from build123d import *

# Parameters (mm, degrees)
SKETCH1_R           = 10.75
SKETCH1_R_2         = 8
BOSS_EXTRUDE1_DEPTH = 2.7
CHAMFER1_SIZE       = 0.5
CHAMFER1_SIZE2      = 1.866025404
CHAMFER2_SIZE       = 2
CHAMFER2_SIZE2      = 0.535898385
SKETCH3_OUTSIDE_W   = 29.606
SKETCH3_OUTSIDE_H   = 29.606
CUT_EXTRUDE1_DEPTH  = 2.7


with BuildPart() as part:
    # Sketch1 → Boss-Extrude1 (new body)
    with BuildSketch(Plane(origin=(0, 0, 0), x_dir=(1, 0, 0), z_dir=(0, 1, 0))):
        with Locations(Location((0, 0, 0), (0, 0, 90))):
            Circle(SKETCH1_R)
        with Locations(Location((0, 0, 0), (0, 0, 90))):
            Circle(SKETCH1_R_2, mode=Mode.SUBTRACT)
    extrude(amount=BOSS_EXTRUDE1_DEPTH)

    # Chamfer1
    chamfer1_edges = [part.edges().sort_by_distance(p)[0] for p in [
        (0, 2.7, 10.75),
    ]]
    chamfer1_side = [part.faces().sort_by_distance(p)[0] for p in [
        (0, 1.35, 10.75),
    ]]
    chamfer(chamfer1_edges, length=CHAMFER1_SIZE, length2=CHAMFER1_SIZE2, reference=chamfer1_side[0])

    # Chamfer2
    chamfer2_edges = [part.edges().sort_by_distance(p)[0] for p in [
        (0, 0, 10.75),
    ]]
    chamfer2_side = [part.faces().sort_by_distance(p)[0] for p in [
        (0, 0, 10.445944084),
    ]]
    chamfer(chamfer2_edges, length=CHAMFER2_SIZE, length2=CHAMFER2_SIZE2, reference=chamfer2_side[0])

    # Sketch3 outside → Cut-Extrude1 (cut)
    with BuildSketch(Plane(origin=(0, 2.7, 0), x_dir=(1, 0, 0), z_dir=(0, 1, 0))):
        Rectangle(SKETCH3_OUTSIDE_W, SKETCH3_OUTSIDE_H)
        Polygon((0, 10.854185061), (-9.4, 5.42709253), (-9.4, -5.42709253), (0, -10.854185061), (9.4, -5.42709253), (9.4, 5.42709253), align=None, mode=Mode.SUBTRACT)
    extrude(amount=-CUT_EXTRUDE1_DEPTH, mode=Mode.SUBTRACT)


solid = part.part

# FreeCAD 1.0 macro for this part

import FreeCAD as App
import Part
import Sketcher

V = App.Vector
Q = App.Units.Quantity


def edges_at(feature, points):
    """Names of the edges that pass closest to the given points."""
    edges = feature.Shape.Edges
    near = lambda p: min(range(len(edges)), key=lambda i: edges[i].distToShape(Part.Vertex(*p))[0])
    return sorted({f"Edge{near(p) + 1}" for p in points})

doc = App.newDocument("Part")
body = doc.addObject("PartDesign::Body", "Body")

# Sketch on XZ plane
sketch1 = body.newObject("Sketcher::SketchObject", "Sketch")
sketch1.AttachmentSupport = (doc.getObject("XZ_Plane"), [""])
sketch1.MapMode = "FlatFace"
sketch1.addGeometry([
    Part.Circle(V(0, 0, 0), V(0, 0, 1), 11),
    Part.Circle(V(0, 0, 0), V(0, 0, 1), 8),
], False)
sketch1.addConstraint([
    Sketcher.Constraint("Coincident", 0, 3, -1, 1),
    Sketcher.Constraint("Coincident", 1, 3, -1, 1),
    Sketcher.Constraint("Diameter", 1, 16.0),
    Sketcher.Constraint("Diameter", 0, 21.5),
])
pad1 = body.newObject("PartDesign::Pad", "Pad")
pad1.Profile = sketch1
pad1.Length = 2.7
pad1.Reversed = True
doc.recompute()

chamfer = body.newObject("PartDesign::Chamfer", "Chamfer")
chamfer.Base = (pad1, edges_at(pad1, [(0, 2.7, 10.75)]))
chamfer.ChamferType = "Two distances"
chamfer.Size = 0.5
chamfer.Size2 = 1.866025
doc.recompute()

chamfer2 = body.newObject("PartDesign::Chamfer", "Chamfer001")
chamfer2.Base = (chamfer, edges_at(chamfer, [(0, 0, 10.75)]))
chamfer2.ChamferType = "Two distances"
chamfer2.Size = 2
chamfer2.Size2 = 0.535898
chamfer2.FlipDirection = True

# Sketch on XZ plane
sketch2 = body.newObject("Sketcher::SketchObject", "Sketch001")
sketch2.AttachmentSupport = (doc.getObject("XZ_Plane"), [""])
sketch2.MapMode = "FlatFace"
sketch2.AttachmentOffset = App.Placement(V(0, 0, -2.7), App.Rotation())
sketch2.addGeometry([
    Part.LineSegment(V(-15, -15, 0), V(-15, 15, 0)),  # 0
    Part.LineSegment(V(-15, 15, 0), V(15, 15, 0)),  # 1
    Part.LineSegment(V(15, 15, 0), V(15, -15, 0)),  # 2
    Part.LineSegment(V(15, -15, 0), V(-15, -15, 0)),  # 3
    Part.LineSegment(V(-9, -5, 0), V(0, -11, 0)),  # 4
    Part.LineSegment(V(0, -11, 0), V(9, -5, 0)),  # 5
    Part.LineSegment(V(9, -5, 0), V(9, 5, 0)),  # 6
    Part.LineSegment(V(9, 5, 0), V(0, 11, 0)),  # 7
    Part.LineSegment(V(0, 11, 0), V(-9, 5, 0)),  # 8
    Part.LineSegment(V(-9, 5, 0), V(-9, -5, 0)),  # 9
], False)
sketch2.addConstraint([
    Sketcher.Constraint("Coincident", 0, 2, 1, 1),
    Sketcher.Constraint("Coincident", 1, 2, 2, 1),
    Sketcher.Constraint("Coincident", 2, 2, 3, 1),
    Sketcher.Constraint("Coincident", 3, 2, 0, 1),
    Sketcher.Constraint("Coincident", 4, 2, 5, 1),
    Sketcher.Constraint("Coincident", 5, 2, 6, 1),
    Sketcher.Constraint("Coincident", 6, 2, 7, 1),
    Sketcher.Constraint("Coincident", 7, 2, 8, 1),
    Sketcher.Constraint("Coincident", 8, 2, 9, 1),
    Sketcher.Constraint("Coincident", 9, 2, 4, 1),
    Sketcher.Constraint("Vertical", 0),
    Sketcher.Constraint("Horizontal", 1),
    Sketcher.Constraint("Vertical", 2),
    Sketcher.Constraint("Horizontal", 3),
    Sketcher.Constraint("Vertical", 6),
    Sketcher.Constraint("Vertical", 9),
    Sketcher.Constraint("Symmetric", 0, 2, 2, 2, -1, 1),
    Sketcher.Constraint("Symmetric", 4, 2, 7, 2, -1, 1),
    Sketcher.Constraint("Symmetric", 5, 2, 8, 2, -1, 1),
    Sketcher.Constraint("PointOnObject", 4, 2, -2),
    Sketcher.Constraint("Parallel", 4, 7),
    Sketcher.Constraint("Horizontal", 6, 2, 8, 2),
    Sketcher.Constraint("Equal", 3, 0),
    Sketcher.Constraint("Angle", 4, Q("-30 deg")),
    Sketcher.Constraint("DistanceX", -1, 1, 5, 2, 9.4),
    Sketcher.Constraint("DistanceX", 1, 1, 1, 2, 29.606),
    Sketcher.Constraint("DistanceY", 6, 1, 6, 2, 10.854185),
])
pocket1 = body.newObject("PartDesign::Pocket", "Pocket")
pocket1.Profile = sketch2
pocket1.Length = 2.7
pocket1.Reversed = True

doc.recompute()
